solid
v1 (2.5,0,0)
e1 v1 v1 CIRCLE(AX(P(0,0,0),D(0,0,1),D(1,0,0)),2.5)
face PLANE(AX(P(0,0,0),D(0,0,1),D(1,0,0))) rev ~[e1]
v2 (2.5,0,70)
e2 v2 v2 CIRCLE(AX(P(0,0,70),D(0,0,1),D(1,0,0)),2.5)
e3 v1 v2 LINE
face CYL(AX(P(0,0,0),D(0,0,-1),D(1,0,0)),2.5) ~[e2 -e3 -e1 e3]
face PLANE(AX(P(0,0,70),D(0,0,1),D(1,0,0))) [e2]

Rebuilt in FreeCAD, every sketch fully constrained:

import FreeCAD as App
import Part
import Sketcher

V = App.Vector

doc = App.newDocument("Part")
params = doc.addObject("Spreadsheet::Sheet", "Params")
for row, (alias, value) in enumerate([
    ("sketch1_diameter", "5 mm"),
    ("pad1_length", "70 mm"),
], start=1):
    params.set(f"A{row}", alias)
    params.set(f"B{row}", "=" + value)
    params.setAlias(f"B{row}", alias)

body = doc.addObject("PartDesign::Body", "Body")

sketch1 = body.newObject("Sketcher::SketchObject", "Sketch")
sketch1.AttachmentSupport = (doc.getObject("XY_Plane"), [""])
sketch1.MapMode = "FlatFace"
sketch1.addGeometry(Part.Circle(V(0, 0, 0), V(0, 0, 1), 2.5), False)
sketch1.addConstraint([
    Sketcher.Constraint("Coincident", 0, 3, -1, 1),
    Sketcher.Constraint("Diameter", 0, 5.0),
])
sketch1.setExpression("Constraints[1]", "Params.sketch1_diameter")
pad1 = body.newObject("PartDesign::Pad", "Pad")
pad1.Profile = sketch1
pad1.setExpression("Length", "Params.pad1_length")

doc.recompute()
